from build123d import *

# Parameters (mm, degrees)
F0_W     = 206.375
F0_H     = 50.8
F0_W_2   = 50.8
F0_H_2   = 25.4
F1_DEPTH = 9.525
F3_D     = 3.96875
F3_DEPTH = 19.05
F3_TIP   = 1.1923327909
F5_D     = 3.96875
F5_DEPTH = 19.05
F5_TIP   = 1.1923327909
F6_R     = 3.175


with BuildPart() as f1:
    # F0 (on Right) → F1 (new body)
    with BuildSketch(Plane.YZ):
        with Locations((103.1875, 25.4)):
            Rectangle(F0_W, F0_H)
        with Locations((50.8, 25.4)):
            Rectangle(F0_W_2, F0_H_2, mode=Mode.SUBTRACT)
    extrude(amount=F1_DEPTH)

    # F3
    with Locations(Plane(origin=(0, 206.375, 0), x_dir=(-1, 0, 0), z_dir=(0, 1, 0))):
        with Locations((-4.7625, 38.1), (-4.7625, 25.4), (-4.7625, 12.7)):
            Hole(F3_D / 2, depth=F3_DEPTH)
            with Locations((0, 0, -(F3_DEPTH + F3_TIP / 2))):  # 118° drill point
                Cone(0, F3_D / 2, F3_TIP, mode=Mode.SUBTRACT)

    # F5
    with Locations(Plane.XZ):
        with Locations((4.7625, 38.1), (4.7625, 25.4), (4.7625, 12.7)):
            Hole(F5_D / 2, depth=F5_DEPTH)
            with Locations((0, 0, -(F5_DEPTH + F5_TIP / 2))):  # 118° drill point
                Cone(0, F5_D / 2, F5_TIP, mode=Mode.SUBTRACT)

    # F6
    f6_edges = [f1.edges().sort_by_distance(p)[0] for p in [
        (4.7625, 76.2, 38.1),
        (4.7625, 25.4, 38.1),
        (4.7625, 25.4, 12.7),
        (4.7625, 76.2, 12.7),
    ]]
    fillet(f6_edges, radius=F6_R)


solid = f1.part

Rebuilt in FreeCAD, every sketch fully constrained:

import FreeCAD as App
import Part
import Sketcher
from FreeCAD import Vector
Q = App.Units.Quantity


def edges_at(feature, points):
    """Names of the edges that pass closest to the given points."""
    edges = feature.Shape.Edges
    near = lambda p: min(range(len(edges)), key=lambda i: edges[i].distToShape(Part.Vertex(*p))[0])
    return sorted({f"Edge{near(p) + 1}" for p in points})


def add_polygon(sketch, points):
    """Adds a closed chain of lines whose ends are joined by coincident constraints."""
    first, n = sketch.GeometryCount, len(points)
    for a, b in zip(points, points[1:] + points[:1]):
        sketch.addGeometry(Part.LineSegment(App.Vector(*a, 0), App.Vector(*b, 0)), False)
    for i in range(n):
        sketch.addConstraint(Sketcher.Constraint("Coincident", first + i, 2, first + (i + 1) % n, 1))

doc = App.newDocument("Part")
body = doc.addObject("PartDesign::Body", "Body")

# Sketch on YZ plane
sketch1 = body.newObject("Sketcher::SketchObject", "Sketch")
sketch1.AttachmentSupport = (doc.getObject("YZ_Plane"), [""])
sketch1.MapMode = "FlatFace"
add_polygon(sketch1, [(0, 50.8), (0, 0), (206.375, 0), (206.375, 50.8)])  # lines 0-3
add_polygon(sketch1, [(76.2, 12.7), (25.4, 12.7), (25.4, 38.1), (76.2, 38.1)])  # lines 4-7
sketch1.addConstraint(Sketcher.Constraint("Vertical", 0))
sketch1.addConstraint(Sketcher.Constraint("Horizontal", 1))
sketch1.addConstraint(Sketcher.Constraint("Vertical", 2))
sketch1.addConstraint(Sketcher.Constraint("Horizontal", 3))
sketch1.addConstraint(Sketcher.Constraint("Horizontal", 4))
sketch1.addConstraint(Sketcher.Constraint("Vertical", 5))
sketch1.addConstraint(Sketcher.Constraint("Horizontal", 6))
sketch1.addConstraint(Sketcher.Constraint("Vertical", 7))
sketch1.addConstraint(Sketcher.Constraint("Coincident", 0, 2, -1, 1))
sketch1.addConstraint(Sketcher.Constraint("Equal", 6, 0))
sketch1.addConstraint(Sketcher.Constraint("DistanceX", 4, 2, 4, 1, Q("2 in")))
sketch1.addConstraint(Sketcher.Constraint("DistanceY", 5, 1, 5, 2, Q("1 in")))
sketch1.addConstraint(Sketcher.Constraint("DistanceX", -1, 1, 4, 2, Q("1 in")))
sketch1.addConstraint(Sketcher.Constraint("DistanceY", -1, 1, 4, 2, Q("0.5 in")))
sketch1.addConstraint(Sketcher.Constraint("DistanceX", 1, 1, 1, 2, Q("8.125 in")))
pad1 = body.newObject("PartDesign::Pad", "Pad")
pad1.Profile = sketch1
pad1.Length = Q("0.375 in")

# Sketch on XZ plane
sketch2 = body.newObject("Sketcher::SketchObject", "Sketch001")
sketch2.AttachmentSupport = (doc.getObject("XZ_Plane"), [""])
sketch2.MapMode = "FlatFace"
sketch2.AttachmentOffset = App.Placement(Vector(0, 0, -8.125 * 25.4), App.Rotation())
sketch2.addGeometry(Part.Circle(Vector(4.7625, 38.1, 0), Vector(0, 0, 1), 1.984375), False)
sketch2.addGeometry(Part.Circle(Vector(4.7625, 25.4, 0), Vector(0, 0, 1), 1.984375), False)
sketch2.addGeometry(Part.Circle(Vector(4.7625, 12.7, 0), Vector(0, 0, 1), 1.984375), False)
sketch2.addConstraint(Sketcher.Constraint("Equal", 0, 1))
sketch2.addConstraint(Sketcher.Constraint("Equal", 1, 2))
sketch2.addConstraint(Sketcher.Constraint("Vertical", 0, 3, 1, 3))
sketch2.addConstraint(Sketcher.Constraint("Vertical", 1, 3, 2, 3))
sketch2.addConstraint(Sketcher.Constraint("Diameter", 0, Q("0.15625 in")))
sketch2.addConstraint(Sketcher.Constraint("DistanceY", -1, 1, 1, 3, Q("1 in")))
sketch2.addConstraint(Sketcher.Constraint("DistanceY", 2, 3, 0, 3, Q("1 in")))
sketch2.addConstraint(Sketcher.Constraint("DistanceY", -1, 1, 0, 3, Q("1.5 in")))
sketch2.addConstraint(Sketcher.Constraint("DistanceX", -1, 1, 0, 3, Q("0.1875 in")))
doc.recompute()
hole = body.newObject("PartDesign::Hole", "Hole")
hole.Profile = sketch2
hole.ThreadType = "None"
hole.Diameter = Q("0.15625 in")
hole.DepthType = "Dimension"
hole.Depth = Q("0.75 in")
hole.DrillPoint = "Angled"
hole.DrillPointAngle = 118
hole.Reversed = True

# Sketch on XZ plane
sketch3 = body.newObject("Sketcher::SketchObject", "Sketch002")
sketch3.AttachmentSupport = (doc.getObject("XZ_Plane"), [""])
sketch3.MapMode = "FlatFace"
sketch3.addGeometry(Part.Circle(Vector(4.7625, 38.1, 0), Vector(0, 0, 1), 1.984375), False)
sketch3.addGeometry(Part.Circle(Vector(4.7625, 25.4, 0), Vector(0, 0, 1), 1.984375), False)
sketch3.addGeometry(Part.Circle(Vector(4.7625, 12.7, 0), Vector(0, 0, 1), 1.984375), False)
sketch3.addConstraint(Sketcher.Constraint("Equal", 0, 1))
sketch3.addConstraint(Sketcher.Constraint("Equal", 1, 2))
sketch3.addConstraint(Sketcher.Constraint("Vertical", 0, 3, 1, 3))
sketch3.addConstraint(Sketcher.Constraint("Vertical", 1, 3, 2, 3))
sketch3.addConstraint(Sketcher.Constraint("Diameter", 0, Q("0.15625 in")))
sketch3.addConstraint(Sketcher.Constraint("DistanceY", -1, 1, 1, 3, Q("1 in")))
sketch3.addConstraint(Sketcher.Constraint("DistanceY", 2, 3, 0, 3, Q("1 in")))
sketch3.addConstraint(Sketcher.Constraint("DistanceY", -1, 1, 0, 3, Q("1.5 in")))
sketch3.addConstraint(Sketcher.Constraint("DistanceX", -1, 1, 0, 3, Q("0.1875 in")))
doc.recompute()
hole2 = body.newObject("PartDesign::Hole", "Hole001")
hole2.Profile = sketch3
hole2.ThreadType = "None"
hole2.Diameter = Q("0.15625 in")
hole2.DepthType = "Dimension"
hole2.Depth = Q("0.75 in")
hole2.DrillPoint = "Angled"
hole2.DrillPointAngle = 118
doc.recompute()

fillet = body.newObject("PartDesign::Fillet", "Fillet")
fillet.Base = (hole2, edges_at(hole2, [
    (4.763, 76.2, 38.1),
    (4.763, 25.4, 38.1),
    (4.763, 25.4, 12.7),
    (4.763, 76.2, 12.7),
]))
fillet.Radius = Q("0.125 in")

doc.recompute()
